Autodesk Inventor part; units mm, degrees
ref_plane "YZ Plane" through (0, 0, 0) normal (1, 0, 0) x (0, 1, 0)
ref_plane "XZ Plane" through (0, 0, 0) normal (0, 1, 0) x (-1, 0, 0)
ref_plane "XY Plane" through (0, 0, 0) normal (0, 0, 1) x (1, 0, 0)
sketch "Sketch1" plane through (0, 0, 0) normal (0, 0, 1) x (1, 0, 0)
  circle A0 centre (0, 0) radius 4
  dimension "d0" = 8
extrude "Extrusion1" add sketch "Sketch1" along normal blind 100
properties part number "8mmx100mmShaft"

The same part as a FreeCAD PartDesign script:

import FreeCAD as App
import Part
import Sketcher

V = App.Vector

doc = App.newDocument("Part")
params = doc.addObject("Spreadsheet::Sheet", "Params")
for row, (alias, value) in enumerate([
    ("sketch1_diameter", "8 mm"),
    ("pad1_length", "100 mm"),
], start=1):
    params.set(f"A{row}", alias)
    params.set(f"B{row}", "=" + value)
    params.setAlias(f"B{row}", alias)

body = doc.addObject("PartDesign::Body", "Body")

sketch1 = doc.addObject("Sketcher::SketchObject", "Sketch")
body.addObject(sketch1)
sketch1.AttachmentSupport = (doc.XY_Plane, [""])
sketch1.MapMode = "FlatFace"
sketch1.addGeometry(Part.Circle(V(0, 0, 0), V(0, 0, 1), 4), False)
sketch1.addConstraint(Sketcher.Constraint("Coincident", 0, 3, -1, 1))
sketch1.addConstraint(Sketcher.Constraint("Diameter", 0, 8.0))
sketch1.setExpression("Constraints[1]", "Params.sketch1_diameter")
pad1 = doc.addObject("PartDesign::Pad", "Pad")
body.addObject(pad1)
pad1.Profile = sketch1
pad1.setExpression("Length", "Params.pad1_length")

doc.recompute()
